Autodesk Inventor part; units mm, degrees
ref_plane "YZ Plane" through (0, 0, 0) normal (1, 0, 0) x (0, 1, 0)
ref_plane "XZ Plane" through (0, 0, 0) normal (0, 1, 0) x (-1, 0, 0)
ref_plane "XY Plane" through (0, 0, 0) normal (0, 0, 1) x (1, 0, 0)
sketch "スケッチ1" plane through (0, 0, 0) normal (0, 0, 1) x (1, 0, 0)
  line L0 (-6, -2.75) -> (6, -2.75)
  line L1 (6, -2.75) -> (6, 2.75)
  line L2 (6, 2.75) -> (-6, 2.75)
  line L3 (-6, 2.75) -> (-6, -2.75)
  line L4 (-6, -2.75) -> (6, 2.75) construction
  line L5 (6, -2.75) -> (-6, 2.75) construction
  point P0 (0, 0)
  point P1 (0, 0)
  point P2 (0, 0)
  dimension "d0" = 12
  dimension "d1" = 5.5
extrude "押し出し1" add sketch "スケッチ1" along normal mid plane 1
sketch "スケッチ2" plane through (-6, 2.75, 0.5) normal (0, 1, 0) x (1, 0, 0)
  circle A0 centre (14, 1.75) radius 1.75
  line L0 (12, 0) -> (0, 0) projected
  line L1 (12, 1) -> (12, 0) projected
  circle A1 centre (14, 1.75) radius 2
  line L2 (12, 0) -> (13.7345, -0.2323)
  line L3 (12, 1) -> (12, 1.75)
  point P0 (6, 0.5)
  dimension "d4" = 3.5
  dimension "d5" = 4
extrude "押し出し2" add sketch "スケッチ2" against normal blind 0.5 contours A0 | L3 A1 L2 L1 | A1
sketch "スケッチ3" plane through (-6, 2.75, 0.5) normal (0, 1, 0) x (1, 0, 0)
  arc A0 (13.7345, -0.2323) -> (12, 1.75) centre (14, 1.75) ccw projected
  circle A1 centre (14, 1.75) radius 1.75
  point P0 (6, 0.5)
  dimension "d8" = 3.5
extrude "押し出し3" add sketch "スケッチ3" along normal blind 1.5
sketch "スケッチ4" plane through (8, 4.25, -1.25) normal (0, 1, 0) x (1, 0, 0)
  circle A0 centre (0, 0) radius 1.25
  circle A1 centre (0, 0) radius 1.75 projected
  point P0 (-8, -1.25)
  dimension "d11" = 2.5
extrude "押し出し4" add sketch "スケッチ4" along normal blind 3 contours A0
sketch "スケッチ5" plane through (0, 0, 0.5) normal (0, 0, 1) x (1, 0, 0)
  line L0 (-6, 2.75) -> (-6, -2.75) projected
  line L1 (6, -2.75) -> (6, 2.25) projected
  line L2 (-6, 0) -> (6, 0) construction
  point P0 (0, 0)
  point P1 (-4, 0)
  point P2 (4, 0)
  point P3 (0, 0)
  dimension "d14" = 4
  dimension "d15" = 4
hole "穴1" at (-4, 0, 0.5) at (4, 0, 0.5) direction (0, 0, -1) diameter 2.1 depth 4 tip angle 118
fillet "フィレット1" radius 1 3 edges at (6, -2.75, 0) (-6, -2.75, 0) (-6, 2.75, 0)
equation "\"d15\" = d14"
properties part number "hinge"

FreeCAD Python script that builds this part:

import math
import FreeCAD as App
import Part
import Sketcher
from FreeCAD import Vector


def edges_at(feature, points):
    """Names of the edges that pass closest to the given points."""
    edges = feature.Shape.Edges
    near = lambda p: min(range(len(edges)), key=lambda i: edges[i].distToShape(Part.Vertex(*p))[0])
    return sorted({f"Edge{near(p) + 1}" for p in points})


def add_polygon(sketch, points):
    """Adds a closed chain of lines whose ends are joined by coincident constraints."""
    first, n = sketch.GeometryCount, len(points)
    for a, b in zip(points, points[1:] + points[:1]):
        sketch.addGeometry(Part.LineSegment(App.Vector(*a, 0), App.Vector(*b, 0)), False)
    for i in range(n):
        sketch.addConstraint(Sketcher.Constraint("Coincident", first + i, 2, first + (i + 1) % n, 1))

doc = App.newDocument("Part")
body = doc.addObject("PartDesign::Body", "Body")

sketch1 = doc.addObject("Sketcher::SketchObject", "Sketch")
body.addObject(sketch1)
sketch1.AttachmentSupport = (doc.XY_Plane, [""])
sketch1.MapMode = "FlatFace"
add_polygon(sketch1, [(-6, 3), (-6, -3), (6, -3), (6, 3)])
sketch1.addConstraint([
    Sketcher.Constraint("Vertical", 0),
    Sketcher.Constraint("Horizontal", 1),
    Sketcher.Constraint("Vertical", 2),
    Sketcher.Constraint("Horizontal", 3),
    Sketcher.Constraint("Symmetric", 0, 2, 2, 2, -1, 1),
    Sketcher.Constraint("DistanceX", 1, 1, 1, 2, 12.0),
    Sketcher.Constraint("DistanceY", 0, 2, 0, 1, 5.5),
])
pad1 = doc.addObject("PartDesign::Pad", "Pad")
body.addObject(pad1)
pad1.Profile = sketch1
pad1.Length = 1
pad1.Midplane = True

sketch2 = doc.addObject("Sketcher::SketchObject", "Sketch001")
body.addObject(sketch2)
sketch2.AttachmentSupport = (doc.XZ_Plane, [""])
sketch2.MapMode = "FlatFace"
sketch2.AttachmentOffset = App.Placement(Vector(0, 0, -2.75), App.Rotation())
sketch2.addGeometry([
    Part.LineSegment(Vector(6, -1.2, 0), Vector(6, 0.5, 0)),
    Part.LineSegment(Vector(6, 0.5, 0), Vector(7.7, 0.7, 0)),
    Part.ArcOfCircle(Part.Circle(Vector(8, -1.2, 0), Vector(0, 0, 1), 2), math.radians(180), math.radians(458)),
], False)
sketch2.addConstraint([
    Sketcher.Constraint("Coincident", 0, 2, 1, 1),
    Sketcher.Constraint("Tangent", 1, 2, 2, 2),
    Sketcher.Constraint("Tangent", 2, 1, 0, 1),
    Sketcher.Constraint("Vertical", 0),
    Sketcher.Constraint("Radius", 2, 2.0),
    Sketcher.Constraint("DistanceX", -1, 1, 2, 3, 8.0),
    Sketcher.Constraint("DistanceY", 0, 1, 0, 2, 1.75),
    Sketcher.Constraint("DistanceY", -1, 1, 0, 2, 0.5),
])
pad2 = doc.addObject("PartDesign::Pad", "Pad001")
body.addObject(pad2)
pad2.Profile = sketch2
pad2.Length = 0.5

sketch3 = doc.addObject("Sketcher::SketchObject", "Sketch002")
body.addObject(sketch3)
sketch3.AttachmentSupport = (doc.XZ_Plane, [""])
sketch3.MapMode = "FlatFace"
sketch3.AttachmentOffset = App.Placement(Vector(0, 0, -2.75), App.Rotation())
sketch3.addGeometry(Part.Circle(Vector(8, -1.2, 0), Vector(0, 0, 1), 1.8), False)
sketch3.addConstraint([
    Sketcher.Constraint("Diameter", 0, 3.5),
    Sketcher.Constraint("DistanceX", -1, 1, 0, 3, 8.0),
    Sketcher.Constraint("DistanceY", 0, 3, -1, 1, 1.25),
])
pad3 = doc.addObject("PartDesign::Pad", "Pad002")
body.addObject(pad3)
pad3.Profile = sketch3
pad3.Length = 1.5
pad3.Reversed = True

sketch4 = doc.addObject("Sketcher::SketchObject", "Sketch003")
body.addObject(sketch4)
sketch4.AttachmentSupport = (doc.XZ_Plane, [""])
sketch4.MapMode = "FlatFace"
sketch4.AttachmentOffset = App.Placement(Vector(0, 0, -4.25), App.Rotation())
sketch4.addGeometry(Part.Circle(Vector(8, -1.2, 0), Vector(0, 0, 1), 1.2), False)
sketch4.addConstraint([
    Sketcher.Constraint("Diameter", 0, 2.5),
    Sketcher.Constraint("DistanceX", -1, 1, 0, 3, 8.0),
    Sketcher.Constraint("DistanceY", 0, 3, -1, 1, 1.25),
])
pad4 = doc.addObject("PartDesign::Pad", "Pad003")
body.addObject(pad4)
pad4.Profile = sketch4
pad4.Length = 3
pad4.Reversed = True

sketch5 = doc.addObject("Sketcher::SketchObject", "Sketch004")
body.addObject(sketch5)
sketch5.AttachmentSupport = (doc.XY_Plane, [""])
sketch5.MapMode = "FlatFace"
sketch5.AttachmentOffset = App.Placement(Vector(0, 0, 0.5), App.Rotation())
sketch5.addGeometry([
    Part.Circle(Vector(-4, 0, 0), Vector(0, 0, 1), 1.1),
    Part.Circle(Vector(4, 0, 0), Vector(0, 0, 1), 1.1),
], False)
sketch5.addConstraint([
    Sketcher.Constraint("Equal", 0, 1),
    Sketcher.Constraint("Symmetric", 0, 3, 1, 3, -1, 1),
    Sketcher.Constraint("PointOnObject", 0, 3, -1),
    Sketcher.Constraint("Diameter", 0, 2.1),
    Sketcher.Constraint("DistanceX", 0, 3, -1, 1, 4.0),
])
doc.recompute()
hole = doc.addObject("PartDesign::Hole", "Hole")
body.addObject(hole)
hole.Profile = sketch5
hole.ThreadType = "None"
hole.Diameter = 2.1
hole.DepthType = "Dimension"
hole.Depth = 4
hole.DrillPoint = "Angled"
hole.DrillPointAngle = 118
doc.recompute()

fillet = doc.addObject("PartDesign::Fillet", "Fillet")
body.addObject(fillet)
fillet.Base = (hole, edges_at(hole, [(6, -2.75, 0), (-6, -2.75, 0), (-6, 2.75, 0)]))
fillet.Radius = 1

doc.recompute()
